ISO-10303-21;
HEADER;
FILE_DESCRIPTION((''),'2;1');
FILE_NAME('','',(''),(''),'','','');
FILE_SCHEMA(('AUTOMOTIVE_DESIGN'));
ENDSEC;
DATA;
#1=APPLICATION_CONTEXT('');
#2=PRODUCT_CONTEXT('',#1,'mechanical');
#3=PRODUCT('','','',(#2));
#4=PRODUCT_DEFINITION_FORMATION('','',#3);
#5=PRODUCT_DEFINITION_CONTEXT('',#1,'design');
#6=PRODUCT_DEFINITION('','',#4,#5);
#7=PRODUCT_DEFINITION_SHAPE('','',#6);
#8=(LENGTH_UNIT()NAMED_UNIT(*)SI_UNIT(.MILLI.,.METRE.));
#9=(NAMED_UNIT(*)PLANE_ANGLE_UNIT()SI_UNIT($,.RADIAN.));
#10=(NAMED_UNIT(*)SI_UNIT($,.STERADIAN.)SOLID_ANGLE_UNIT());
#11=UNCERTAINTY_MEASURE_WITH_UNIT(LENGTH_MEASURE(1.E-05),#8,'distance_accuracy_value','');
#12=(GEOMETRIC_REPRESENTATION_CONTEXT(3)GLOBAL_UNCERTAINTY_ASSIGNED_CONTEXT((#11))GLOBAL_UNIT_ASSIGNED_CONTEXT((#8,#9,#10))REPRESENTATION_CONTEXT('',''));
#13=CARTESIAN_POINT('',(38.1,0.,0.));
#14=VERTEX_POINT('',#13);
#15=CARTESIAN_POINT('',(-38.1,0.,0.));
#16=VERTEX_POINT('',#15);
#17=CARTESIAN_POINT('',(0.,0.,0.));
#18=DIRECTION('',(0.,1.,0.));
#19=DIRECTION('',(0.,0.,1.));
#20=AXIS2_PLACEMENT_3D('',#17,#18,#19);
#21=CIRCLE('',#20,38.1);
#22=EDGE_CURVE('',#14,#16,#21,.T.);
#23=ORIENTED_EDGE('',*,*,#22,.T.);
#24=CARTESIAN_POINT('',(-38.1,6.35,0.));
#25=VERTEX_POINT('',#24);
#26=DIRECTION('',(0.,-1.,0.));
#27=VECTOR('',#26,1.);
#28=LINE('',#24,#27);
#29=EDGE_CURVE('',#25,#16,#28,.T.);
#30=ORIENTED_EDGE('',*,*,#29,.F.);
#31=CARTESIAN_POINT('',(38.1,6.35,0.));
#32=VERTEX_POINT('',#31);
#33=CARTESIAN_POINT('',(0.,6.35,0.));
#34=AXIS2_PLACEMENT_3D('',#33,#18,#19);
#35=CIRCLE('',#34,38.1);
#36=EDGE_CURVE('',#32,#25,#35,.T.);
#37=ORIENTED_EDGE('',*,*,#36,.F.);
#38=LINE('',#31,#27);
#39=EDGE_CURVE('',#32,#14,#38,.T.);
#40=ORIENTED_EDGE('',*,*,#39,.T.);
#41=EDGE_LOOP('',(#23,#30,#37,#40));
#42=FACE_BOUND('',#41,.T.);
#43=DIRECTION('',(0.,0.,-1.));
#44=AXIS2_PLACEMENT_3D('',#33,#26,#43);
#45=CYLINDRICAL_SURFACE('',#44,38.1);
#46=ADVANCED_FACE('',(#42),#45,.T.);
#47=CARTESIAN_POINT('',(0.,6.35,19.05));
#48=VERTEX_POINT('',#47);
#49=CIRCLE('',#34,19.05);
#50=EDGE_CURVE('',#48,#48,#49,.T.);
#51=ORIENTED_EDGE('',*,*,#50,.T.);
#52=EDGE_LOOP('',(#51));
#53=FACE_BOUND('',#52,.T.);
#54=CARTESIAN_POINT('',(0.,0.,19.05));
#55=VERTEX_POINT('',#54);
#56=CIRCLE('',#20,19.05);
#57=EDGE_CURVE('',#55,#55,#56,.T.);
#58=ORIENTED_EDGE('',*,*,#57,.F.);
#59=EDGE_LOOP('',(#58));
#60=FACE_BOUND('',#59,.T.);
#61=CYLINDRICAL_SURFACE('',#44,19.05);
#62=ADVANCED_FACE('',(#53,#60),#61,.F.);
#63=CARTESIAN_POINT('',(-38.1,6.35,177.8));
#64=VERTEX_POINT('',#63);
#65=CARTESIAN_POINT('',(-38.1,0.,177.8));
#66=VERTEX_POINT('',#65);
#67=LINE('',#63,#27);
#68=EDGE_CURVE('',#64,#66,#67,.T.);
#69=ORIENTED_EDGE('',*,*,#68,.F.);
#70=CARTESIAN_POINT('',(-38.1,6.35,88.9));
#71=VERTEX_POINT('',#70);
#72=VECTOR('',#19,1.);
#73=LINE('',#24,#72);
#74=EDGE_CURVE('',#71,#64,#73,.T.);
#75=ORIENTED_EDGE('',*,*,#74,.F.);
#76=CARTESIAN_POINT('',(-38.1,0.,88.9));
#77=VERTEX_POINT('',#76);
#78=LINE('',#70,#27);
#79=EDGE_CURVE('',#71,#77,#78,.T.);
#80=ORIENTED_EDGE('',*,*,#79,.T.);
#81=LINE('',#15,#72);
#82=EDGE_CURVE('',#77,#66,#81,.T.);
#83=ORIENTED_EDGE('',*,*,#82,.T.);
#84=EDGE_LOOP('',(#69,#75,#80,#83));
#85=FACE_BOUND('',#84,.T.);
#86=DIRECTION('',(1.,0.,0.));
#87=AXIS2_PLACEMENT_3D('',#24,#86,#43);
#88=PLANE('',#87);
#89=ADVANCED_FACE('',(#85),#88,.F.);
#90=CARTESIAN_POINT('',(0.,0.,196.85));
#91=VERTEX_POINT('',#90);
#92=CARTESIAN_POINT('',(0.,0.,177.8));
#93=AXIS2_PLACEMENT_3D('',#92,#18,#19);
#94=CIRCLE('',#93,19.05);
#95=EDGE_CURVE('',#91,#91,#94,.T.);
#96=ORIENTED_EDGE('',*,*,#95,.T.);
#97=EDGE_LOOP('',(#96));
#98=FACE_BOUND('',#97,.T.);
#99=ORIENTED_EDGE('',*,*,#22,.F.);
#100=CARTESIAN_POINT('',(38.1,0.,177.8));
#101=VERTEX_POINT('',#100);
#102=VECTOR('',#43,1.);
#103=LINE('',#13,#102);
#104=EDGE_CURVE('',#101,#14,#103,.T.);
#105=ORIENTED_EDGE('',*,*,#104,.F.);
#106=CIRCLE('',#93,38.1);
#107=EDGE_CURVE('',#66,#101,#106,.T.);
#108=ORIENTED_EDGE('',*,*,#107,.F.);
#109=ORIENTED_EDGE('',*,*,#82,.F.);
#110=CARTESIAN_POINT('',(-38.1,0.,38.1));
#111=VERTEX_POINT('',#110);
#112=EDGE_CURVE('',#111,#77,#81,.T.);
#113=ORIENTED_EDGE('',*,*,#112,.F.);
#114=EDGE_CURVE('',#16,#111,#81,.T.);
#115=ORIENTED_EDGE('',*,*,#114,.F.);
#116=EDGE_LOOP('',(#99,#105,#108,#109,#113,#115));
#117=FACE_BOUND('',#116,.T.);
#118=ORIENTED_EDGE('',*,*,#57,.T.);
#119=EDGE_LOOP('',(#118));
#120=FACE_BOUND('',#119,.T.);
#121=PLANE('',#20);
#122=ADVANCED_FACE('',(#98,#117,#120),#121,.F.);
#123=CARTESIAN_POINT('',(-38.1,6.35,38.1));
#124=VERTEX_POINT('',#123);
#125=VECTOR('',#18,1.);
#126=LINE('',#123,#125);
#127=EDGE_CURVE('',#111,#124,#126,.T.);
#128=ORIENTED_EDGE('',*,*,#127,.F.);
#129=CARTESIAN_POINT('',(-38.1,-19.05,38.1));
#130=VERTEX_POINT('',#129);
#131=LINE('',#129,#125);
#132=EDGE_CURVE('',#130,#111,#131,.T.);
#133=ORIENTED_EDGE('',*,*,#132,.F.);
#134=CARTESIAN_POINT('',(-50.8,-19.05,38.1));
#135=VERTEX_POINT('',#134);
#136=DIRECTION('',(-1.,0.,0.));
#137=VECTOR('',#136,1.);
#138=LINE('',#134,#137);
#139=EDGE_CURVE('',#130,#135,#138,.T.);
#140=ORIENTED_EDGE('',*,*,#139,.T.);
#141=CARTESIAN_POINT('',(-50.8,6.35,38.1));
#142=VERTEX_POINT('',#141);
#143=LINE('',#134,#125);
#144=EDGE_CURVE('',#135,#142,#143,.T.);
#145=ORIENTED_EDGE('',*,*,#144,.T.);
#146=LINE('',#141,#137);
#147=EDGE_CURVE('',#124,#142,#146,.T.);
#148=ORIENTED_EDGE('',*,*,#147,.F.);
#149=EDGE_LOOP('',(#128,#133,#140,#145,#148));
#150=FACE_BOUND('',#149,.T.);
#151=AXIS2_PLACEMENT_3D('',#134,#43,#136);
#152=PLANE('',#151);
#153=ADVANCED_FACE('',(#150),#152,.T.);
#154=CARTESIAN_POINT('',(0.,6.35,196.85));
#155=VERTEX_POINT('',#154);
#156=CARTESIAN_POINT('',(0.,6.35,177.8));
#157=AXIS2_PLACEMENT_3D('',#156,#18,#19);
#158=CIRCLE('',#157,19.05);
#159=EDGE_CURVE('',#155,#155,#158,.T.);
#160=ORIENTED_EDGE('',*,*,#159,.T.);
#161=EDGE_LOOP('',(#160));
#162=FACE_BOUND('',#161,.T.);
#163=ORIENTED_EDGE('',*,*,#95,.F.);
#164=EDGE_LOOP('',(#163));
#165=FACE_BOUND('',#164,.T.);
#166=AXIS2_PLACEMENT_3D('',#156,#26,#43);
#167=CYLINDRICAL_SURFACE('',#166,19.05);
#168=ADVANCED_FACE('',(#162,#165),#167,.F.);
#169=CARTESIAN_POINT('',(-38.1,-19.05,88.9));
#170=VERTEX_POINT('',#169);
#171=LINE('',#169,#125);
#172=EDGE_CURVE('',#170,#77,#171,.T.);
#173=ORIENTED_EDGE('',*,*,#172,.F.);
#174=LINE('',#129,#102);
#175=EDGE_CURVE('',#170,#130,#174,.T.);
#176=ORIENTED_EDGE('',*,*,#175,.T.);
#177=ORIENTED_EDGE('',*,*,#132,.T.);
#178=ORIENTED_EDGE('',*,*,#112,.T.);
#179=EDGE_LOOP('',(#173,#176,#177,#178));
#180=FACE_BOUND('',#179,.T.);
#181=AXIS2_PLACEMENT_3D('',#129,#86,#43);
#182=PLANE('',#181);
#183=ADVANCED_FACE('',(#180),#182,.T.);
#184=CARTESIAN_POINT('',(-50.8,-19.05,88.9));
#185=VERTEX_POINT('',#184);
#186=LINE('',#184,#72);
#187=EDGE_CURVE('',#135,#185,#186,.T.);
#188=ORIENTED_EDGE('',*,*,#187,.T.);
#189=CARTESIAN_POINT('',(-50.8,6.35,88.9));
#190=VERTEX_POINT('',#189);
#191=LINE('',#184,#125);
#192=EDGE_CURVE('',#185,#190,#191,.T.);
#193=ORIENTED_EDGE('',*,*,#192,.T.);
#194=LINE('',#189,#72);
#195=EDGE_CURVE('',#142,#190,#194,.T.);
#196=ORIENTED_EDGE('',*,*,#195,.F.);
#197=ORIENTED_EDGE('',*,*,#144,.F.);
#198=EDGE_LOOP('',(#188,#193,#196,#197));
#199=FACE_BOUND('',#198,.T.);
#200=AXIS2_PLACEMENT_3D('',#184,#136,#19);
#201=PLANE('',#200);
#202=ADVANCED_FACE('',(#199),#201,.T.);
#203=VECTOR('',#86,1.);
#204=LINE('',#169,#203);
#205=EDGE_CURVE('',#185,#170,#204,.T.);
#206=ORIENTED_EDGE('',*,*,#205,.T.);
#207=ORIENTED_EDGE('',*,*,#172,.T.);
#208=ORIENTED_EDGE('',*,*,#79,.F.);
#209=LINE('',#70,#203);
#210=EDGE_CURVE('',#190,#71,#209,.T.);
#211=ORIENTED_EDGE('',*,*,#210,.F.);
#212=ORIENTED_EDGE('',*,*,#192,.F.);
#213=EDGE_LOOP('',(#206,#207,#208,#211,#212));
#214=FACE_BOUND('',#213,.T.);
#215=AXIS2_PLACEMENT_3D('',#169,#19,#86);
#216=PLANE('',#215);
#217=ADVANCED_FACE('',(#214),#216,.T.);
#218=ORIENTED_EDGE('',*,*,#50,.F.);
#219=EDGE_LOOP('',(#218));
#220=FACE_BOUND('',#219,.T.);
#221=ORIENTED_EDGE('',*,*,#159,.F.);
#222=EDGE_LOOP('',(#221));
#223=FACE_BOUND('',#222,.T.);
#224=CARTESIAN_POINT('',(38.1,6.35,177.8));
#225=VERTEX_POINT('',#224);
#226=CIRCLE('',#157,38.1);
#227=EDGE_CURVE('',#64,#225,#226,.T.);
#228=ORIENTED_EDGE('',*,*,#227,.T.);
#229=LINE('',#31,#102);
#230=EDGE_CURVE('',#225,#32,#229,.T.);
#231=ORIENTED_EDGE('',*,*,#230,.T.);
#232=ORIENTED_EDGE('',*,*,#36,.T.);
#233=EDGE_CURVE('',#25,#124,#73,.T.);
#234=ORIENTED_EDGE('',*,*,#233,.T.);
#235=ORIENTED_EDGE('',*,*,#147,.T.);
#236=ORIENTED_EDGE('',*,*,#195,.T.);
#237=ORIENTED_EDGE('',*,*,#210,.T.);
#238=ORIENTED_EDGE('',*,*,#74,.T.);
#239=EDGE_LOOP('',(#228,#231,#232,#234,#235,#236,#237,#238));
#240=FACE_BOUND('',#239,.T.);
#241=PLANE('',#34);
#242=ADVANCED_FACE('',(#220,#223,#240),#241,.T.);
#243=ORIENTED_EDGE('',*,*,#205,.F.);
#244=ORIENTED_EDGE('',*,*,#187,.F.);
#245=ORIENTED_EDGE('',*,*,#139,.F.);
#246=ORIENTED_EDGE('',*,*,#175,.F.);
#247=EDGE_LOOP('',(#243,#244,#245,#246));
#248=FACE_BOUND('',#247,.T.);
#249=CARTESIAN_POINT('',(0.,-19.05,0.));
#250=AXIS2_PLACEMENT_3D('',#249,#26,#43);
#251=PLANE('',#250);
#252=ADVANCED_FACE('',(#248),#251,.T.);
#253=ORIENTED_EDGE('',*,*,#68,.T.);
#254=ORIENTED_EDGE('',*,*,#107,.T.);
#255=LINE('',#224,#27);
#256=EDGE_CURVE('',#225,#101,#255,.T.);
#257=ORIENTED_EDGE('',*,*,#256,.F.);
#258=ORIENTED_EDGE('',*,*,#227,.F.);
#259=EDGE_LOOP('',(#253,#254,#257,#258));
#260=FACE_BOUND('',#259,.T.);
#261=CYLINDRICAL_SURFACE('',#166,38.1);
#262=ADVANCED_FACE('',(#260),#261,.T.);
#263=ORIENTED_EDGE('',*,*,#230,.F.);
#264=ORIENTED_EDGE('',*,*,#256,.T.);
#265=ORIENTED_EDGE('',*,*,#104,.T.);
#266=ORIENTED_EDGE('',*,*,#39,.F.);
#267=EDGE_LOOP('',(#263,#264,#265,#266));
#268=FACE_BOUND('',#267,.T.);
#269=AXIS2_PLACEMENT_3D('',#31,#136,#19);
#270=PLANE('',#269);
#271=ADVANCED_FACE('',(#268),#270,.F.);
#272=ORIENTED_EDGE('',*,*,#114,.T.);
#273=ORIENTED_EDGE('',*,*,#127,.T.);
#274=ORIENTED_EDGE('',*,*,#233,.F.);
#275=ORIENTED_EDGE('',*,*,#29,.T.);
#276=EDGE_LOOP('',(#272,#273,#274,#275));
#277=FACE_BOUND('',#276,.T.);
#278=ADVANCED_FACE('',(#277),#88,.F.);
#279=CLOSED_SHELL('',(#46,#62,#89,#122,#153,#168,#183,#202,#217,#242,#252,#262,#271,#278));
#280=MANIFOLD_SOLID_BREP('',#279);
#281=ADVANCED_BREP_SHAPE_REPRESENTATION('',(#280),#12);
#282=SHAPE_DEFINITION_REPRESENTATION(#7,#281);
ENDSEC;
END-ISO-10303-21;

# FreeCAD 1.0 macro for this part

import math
import FreeCAD as App
import Part
import Sketcher

V = App.Vector
Q = App.Units.Quantity


def add_polygon(sketch, points):
    """Adds a closed chain of lines whose ends are joined by coincident constraints."""
    first, n = sketch.GeometryCount, len(points)
    for a, b in zip(points, points[1:] + points[:1]):
        sketch.addGeometry(Part.LineSegment(App.Vector(*a, 0), App.Vector(*b, 0)), False)
    for i in range(n):
        sketch.addConstraint(Sketcher.Constraint("Coincident", first + i, 2, first + (i + 1) % n, 1))

doc = App.newDocument("Part")
body = doc.addObject("PartDesign::Body", "Body")

sketch1 = body.newObject("Sketcher::SketchObject", "Sketch")
sketch1.AttachmentSupport = (doc.getObject("XZ_Plane"), [""])
sketch1.MapMode = "FlatFace"
sketch1.addGeometry(Part.LineSegment(V(-38, 0, 0), V(-38, 178, 0)), False)
sketch1.addGeometry(Part.ArcOfCircle(Part.Circle(V(0, 178, 0), V(0, 0, 1), 38), math.radians(0), math.radians(180)), False)
sketch1.addGeometry(Part.LineSegment(V(38, 178, 0), V(38, 0, 0)), False)
sketch1.addGeometry(Part.ArcOfCircle(Part.Circle(V(0, 0, 0), V(0, 0, 1), 38), math.radians(180), math.radians(360)), False)
sketch1.addGeometry(Part.Circle(V(0, 178, 0), V(0, 0, 1), 19), False)
sketch1.addGeometry(Part.Circle(V(0, 0, 0), V(0, 0, 1), 19), False)
sketch1.addConstraint(Sketcher.Constraint("Tangent", 0, 2, 1, 2))
sketch1.addConstraint(Sketcher.Constraint("Tangent", 1, 1, 2, 1))
sketch1.addConstraint(Sketcher.Constraint("Tangent", 2, 2, 3, 2))
sketch1.addConstraint(Sketcher.Constraint("Tangent", 3, 1, 0, 1))
sketch1.addConstraint(Sketcher.Constraint("Vertical", 0))
sketch1.addConstraint(Sketcher.Constraint("Vertical", 2))
sketch1.addConstraint(Sketcher.Constraint("Coincident", 3, 3, -1, 1))
sketch1.addConstraint(Sketcher.Constraint("Coincident", 5, 3, -1, 1))
sketch1.addConstraint(Sketcher.Constraint("Coincident", 4, 3, 1, 3))
sketch1.addConstraint(Sketcher.Constraint("Equal", 4, 5))
sketch1.addConstraint(Sketcher.Constraint("Diameter", 4, Q("1.5 in")))
sketch1.addConstraint(Sketcher.Constraint("Radius", 1, Q("1.5 in")))
sketch1.addConstraint(Sketcher.Constraint("DistanceY", 0, 1, 0, 2, Q("7 in")))
pad1 = body.newObject("PartDesign::Pad", "Pad")
pad1.Profile = sketch1
pad1.Length = Q("0.25 in")
pad1.Reversed = True

sketch2 = body.newObject("Sketcher::SketchObject", "Sketch001")
sketch2.AttachmentSupport = (doc.getObject("XZ_Plane"), [""])
sketch2.MapMode = "FlatFace"
sketch2.AttachmentOffset = App.Placement(V(0, 0, -0.25 * 25.4), App.Rotation())
add_polygon(sketch2, [(-51, 38), (-51, 89), (-38, 89), (-38, 38)])
sketch2.addConstraint(Sketcher.Constraint("Vertical", 0))
sketch2.addConstraint(Sketcher.Constraint("Horizontal", 1))
sketch2.addConstraint(Sketcher.Constraint("Vertical", 2))
sketch2.addConstraint(Sketcher.Constraint("Horizontal", 3))
sketch2.addConstraint(Sketcher.Constraint("DistanceY", 0, 1, 0, 2, Q("2 in")))
sketch2.addConstraint(Sketcher.Constraint("DistanceX", 1, 1, 1, 2, Q("0.5 in")))
sketch2.addConstraint(Sketcher.Constraint("DistanceX", 0, 2, -1, 1, Q("2 in")))
sketch2.addConstraint(Sketcher.Constraint("DistanceY", -1, 1, 0, 2, Q("3.5 in")))
pad2 = body.newObject("PartDesign::Pad", "Pad001")
pad2.Profile = sketch2
pad2.Length = Q("1 in")

doc.recompute()
